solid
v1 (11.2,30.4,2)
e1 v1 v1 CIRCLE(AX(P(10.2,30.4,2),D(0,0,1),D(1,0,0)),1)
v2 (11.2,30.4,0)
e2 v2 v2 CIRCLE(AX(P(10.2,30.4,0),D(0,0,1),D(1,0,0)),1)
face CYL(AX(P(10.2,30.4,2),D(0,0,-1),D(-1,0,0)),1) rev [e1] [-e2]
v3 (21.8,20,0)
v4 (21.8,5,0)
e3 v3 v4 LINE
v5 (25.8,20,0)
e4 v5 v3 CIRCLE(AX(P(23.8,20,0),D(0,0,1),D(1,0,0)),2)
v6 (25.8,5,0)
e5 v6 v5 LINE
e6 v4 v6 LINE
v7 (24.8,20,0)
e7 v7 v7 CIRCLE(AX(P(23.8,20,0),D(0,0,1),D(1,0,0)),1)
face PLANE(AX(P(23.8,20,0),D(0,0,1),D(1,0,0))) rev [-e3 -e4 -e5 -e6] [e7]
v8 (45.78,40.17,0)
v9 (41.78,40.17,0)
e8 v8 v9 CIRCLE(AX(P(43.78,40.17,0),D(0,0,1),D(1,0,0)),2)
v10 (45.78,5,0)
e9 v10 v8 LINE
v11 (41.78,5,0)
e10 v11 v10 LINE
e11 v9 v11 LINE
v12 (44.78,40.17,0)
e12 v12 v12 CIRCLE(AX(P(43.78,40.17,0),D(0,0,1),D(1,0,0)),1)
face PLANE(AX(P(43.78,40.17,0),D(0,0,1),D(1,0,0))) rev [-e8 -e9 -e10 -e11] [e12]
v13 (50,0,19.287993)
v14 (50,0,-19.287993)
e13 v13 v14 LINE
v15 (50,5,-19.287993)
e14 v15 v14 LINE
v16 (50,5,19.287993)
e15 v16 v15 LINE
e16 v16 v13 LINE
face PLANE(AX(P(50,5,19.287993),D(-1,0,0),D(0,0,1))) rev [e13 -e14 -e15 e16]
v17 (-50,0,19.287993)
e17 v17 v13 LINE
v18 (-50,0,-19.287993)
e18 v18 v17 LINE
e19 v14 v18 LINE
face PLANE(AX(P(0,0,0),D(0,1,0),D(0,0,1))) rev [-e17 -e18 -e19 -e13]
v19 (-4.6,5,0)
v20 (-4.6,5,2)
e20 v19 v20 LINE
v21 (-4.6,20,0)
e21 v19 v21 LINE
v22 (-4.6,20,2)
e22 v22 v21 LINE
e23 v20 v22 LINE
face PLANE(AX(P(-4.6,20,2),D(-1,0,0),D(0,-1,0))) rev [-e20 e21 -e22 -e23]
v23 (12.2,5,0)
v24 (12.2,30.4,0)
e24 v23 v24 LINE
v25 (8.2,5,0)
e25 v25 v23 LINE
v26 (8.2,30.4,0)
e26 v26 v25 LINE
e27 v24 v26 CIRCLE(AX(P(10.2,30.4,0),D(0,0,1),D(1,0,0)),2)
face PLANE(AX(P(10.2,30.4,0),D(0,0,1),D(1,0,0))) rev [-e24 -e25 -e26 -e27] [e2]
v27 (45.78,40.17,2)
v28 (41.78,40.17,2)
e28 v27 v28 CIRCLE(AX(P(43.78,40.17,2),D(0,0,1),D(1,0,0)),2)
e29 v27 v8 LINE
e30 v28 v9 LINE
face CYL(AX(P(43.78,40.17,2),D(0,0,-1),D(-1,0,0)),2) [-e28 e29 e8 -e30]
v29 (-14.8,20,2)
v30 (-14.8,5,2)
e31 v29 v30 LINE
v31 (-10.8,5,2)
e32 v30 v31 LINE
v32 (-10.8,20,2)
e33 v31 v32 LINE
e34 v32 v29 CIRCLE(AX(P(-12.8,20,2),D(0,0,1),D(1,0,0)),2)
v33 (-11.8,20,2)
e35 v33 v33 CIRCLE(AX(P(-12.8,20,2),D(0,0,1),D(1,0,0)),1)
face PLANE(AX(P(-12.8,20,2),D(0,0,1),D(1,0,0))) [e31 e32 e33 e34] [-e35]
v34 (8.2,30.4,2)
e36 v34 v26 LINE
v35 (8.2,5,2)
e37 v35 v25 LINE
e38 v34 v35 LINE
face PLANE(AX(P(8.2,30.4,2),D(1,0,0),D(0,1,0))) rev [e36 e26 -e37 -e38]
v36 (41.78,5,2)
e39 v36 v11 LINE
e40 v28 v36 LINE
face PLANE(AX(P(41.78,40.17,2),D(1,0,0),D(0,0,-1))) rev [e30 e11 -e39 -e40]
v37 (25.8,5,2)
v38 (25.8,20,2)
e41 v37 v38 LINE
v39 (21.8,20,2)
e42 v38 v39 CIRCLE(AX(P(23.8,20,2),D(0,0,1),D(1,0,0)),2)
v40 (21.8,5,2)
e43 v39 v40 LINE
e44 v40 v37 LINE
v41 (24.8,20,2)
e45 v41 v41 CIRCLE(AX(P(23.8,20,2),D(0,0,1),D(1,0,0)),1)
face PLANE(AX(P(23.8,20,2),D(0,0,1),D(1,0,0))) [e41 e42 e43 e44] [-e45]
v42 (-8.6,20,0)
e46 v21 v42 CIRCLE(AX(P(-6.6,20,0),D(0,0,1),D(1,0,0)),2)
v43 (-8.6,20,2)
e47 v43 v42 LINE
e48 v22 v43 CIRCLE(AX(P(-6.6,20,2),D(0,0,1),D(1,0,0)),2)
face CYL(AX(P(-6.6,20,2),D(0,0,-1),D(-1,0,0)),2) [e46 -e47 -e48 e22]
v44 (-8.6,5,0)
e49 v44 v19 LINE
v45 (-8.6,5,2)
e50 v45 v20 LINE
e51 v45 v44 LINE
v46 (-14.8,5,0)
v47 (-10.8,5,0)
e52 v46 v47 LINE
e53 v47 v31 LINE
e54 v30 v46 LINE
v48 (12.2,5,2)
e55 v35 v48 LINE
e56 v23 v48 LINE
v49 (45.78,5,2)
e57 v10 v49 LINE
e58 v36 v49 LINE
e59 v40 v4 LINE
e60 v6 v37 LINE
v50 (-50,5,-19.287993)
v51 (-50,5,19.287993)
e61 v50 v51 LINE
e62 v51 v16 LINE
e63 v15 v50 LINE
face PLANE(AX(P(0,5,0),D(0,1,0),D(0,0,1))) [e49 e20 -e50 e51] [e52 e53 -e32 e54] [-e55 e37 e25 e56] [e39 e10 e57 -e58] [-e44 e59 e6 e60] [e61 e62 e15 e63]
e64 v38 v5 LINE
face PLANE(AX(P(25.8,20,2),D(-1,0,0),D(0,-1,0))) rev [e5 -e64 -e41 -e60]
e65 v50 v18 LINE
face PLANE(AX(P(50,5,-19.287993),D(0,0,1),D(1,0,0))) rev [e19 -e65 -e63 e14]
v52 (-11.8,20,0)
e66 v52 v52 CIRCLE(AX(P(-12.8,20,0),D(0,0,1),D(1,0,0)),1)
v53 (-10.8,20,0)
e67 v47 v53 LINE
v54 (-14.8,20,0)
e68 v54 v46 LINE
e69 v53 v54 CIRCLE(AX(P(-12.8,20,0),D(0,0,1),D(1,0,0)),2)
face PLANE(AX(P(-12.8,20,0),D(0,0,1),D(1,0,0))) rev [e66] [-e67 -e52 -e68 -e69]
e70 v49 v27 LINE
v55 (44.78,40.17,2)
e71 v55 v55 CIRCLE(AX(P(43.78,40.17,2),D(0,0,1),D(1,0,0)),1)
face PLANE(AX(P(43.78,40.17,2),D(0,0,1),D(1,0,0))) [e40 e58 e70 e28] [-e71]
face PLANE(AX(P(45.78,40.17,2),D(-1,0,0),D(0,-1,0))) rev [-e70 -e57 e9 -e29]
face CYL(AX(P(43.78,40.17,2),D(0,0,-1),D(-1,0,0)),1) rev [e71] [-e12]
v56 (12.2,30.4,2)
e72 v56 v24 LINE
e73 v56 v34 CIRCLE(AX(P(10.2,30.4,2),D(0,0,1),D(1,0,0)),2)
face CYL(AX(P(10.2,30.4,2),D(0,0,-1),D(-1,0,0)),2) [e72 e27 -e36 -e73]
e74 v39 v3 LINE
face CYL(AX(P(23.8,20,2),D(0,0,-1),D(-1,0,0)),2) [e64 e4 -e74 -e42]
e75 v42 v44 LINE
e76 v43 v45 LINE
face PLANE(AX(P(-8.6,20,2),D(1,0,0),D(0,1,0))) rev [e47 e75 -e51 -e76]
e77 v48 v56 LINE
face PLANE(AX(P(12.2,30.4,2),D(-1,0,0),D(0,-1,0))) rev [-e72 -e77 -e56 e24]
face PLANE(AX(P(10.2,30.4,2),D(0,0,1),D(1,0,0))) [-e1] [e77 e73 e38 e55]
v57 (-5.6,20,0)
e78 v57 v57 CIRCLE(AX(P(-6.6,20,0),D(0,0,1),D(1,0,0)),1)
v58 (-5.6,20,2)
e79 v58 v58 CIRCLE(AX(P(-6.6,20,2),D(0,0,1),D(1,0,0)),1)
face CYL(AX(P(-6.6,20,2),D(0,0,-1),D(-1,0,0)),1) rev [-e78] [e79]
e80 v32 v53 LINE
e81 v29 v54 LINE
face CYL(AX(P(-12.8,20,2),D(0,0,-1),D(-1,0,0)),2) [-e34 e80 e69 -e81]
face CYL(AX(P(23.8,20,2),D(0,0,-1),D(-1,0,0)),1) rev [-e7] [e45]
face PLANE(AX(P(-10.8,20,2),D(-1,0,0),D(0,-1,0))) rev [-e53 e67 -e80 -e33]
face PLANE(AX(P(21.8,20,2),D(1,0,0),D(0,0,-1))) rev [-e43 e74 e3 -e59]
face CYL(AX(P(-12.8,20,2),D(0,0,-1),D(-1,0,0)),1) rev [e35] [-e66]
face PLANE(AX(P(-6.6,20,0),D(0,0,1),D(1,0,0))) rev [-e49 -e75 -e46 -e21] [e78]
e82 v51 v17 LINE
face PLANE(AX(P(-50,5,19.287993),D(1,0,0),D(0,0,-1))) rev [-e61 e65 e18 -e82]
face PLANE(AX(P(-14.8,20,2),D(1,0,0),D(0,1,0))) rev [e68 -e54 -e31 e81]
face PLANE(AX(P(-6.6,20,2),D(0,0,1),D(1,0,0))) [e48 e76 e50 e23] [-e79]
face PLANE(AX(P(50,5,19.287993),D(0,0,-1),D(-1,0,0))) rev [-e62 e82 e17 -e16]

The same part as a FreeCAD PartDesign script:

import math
import FreeCAD as App
import Part
import Sketcher


def add_polygon(sketch, points):
    """Adds a closed chain of lines whose ends are joined by coincident constraints."""
    first, n = sketch.GeometryCount, len(points)
    for a, b in zip(points, points[1:] + points[:1]):
        sketch.addGeometry(Part.LineSegment(App.Vector(*a, 0), App.Vector(*b, 0)), False)
    for i in range(n):
        sketch.addConstraint(Sketcher.Constraint("Coincident", first + i, 2, first + (i + 1) % n, 1))

doc = App.newDocument("Part")
body = doc.addObject("PartDesign::Body", "Body")

sketch1 = body.newObject("Sketcher::SketchObject", "Sketch")
sketch1.AttachmentSupport = (doc.getObject("XZ_Plane"), [""])
sketch1.MapMode = "FlatFace"
add_polygon(sketch1, [(-50, -19), (-50, 19), (50, 19), (50, -19)])
sketch1.addConstraint([
    Sketcher.Constraint("Vertical", 0),
    Sketcher.Constraint("Horizontal", 1),
    Sketcher.Constraint("Vertical", 2),
    Sketcher.Constraint("Horizontal", 3),
    Sketcher.Constraint("Symmetric", 0, 2, 2, 2, -1, 1),
    Sketcher.Constraint("DistanceX", 1, 1, 1, 2, 100.0),
    Sketcher.Constraint("DistanceY", 0, 1, 0, 2, 38.575985),
])
pad1 = body.newObject("PartDesign::Pad", "Pad")
pad1.Profile = sketch1
pad1.Length = 5
pad1.Reversed = True

sketch2 = body.newObject("Sketcher::SketchObject", "Sketch001")
sketch2.AttachmentSupport = (doc.getObject("XY_Plane"), [""])
sketch2.MapMode = "FlatFace"
sketch2.addGeometry([
    Part.LineSegment(App.Vector(-8.6, 20, 0), App.Vector(-8.6, 0, 0)),
    Part.LineSegment(App.Vector(-8.6, 0, 0), App.Vector(-4.6, 0, 0)),
    Part.LineSegment(App.Vector(-4.6, 0, 0), App.Vector(-4.6, 20, 0)),
    Part.ArcOfCircle(Part.Circle(App.Vector(-6.6, 20, 0), App.Vector(0, 0, 1), 2), math.radians(0), math.radians(180)),
    Part.Circle(App.Vector(-6.6, 20, 0), App.Vector(0, 0, 1), 1),
    Part.LineSegment(App.Vector(-14.8, 20, 0), App.Vector(-14.8, 0, 0)),
    Part.LineSegment(App.Vector(-14.8, 0, 0), App.Vector(-10.8, 0, 0)),
    Part.LineSegment(App.Vector(-10.8, 0, 0), App.Vector(-10.8, 20, 0)),
    Part.ArcOfCircle(Part.Circle(App.Vector(-12.8, 20, 0), App.Vector(0, 0, 1), 2), math.radians(0), math.radians(180)),
    Part.Circle(App.Vector(-12.8, 20, 0), App.Vector(0, 0, 1), 1),
    Part.LineSegment(App.Vector(21.8, 20, 0), App.Vector(21.8, 0, 0)),
    Part.LineSegment(App.Vector(21.8, 0, 0), App.Vector(25.8, 0, 0)),
    Part.LineSegment(App.Vector(25.8, 0, 0), App.Vector(25.8, 20, 0)),
    Part.ArcOfCircle(Part.Circle(App.Vector(23.8, 20, 0), App.Vector(0, 0, 1), 2), math.radians(0), math.radians(180)),
    Part.Circle(App.Vector(23.8, 20, 0), App.Vector(0, 0, 1), 1),
    Part.LineSegment(App.Vector(8.2, 30.4, 0), App.Vector(8.2, 0, 0)),
    Part.LineSegment(App.Vector(8.2, 0, 0), App.Vector(12.2, 0, 0)),
    Part.LineSegment(App.Vector(12.2, 0, 0), App.Vector(12.2, 30.4, 0)),
    Part.ArcOfCircle(Part.Circle(App.Vector(10.2, 30.4, 0), App.Vector(0, 0, 1), 2), math.radians(0), math.radians(180)),
    Part.Circle(App.Vector(10.2, 30.4, 0), App.Vector(0, 0, 1), 1),
    Part.LineSegment(App.Vector(41.8, 40.2, 0), App.Vector(41.8, 0, 0)),
    Part.LineSegment(App.Vector(41.8, 0, 0), App.Vector(45.8, 0, 0)),
    Part.LineSegment(App.Vector(45.8, 0, 0), App.Vector(45.8, 40.2, 0)),
    Part.ArcOfCircle(Part.Circle(App.Vector(43.8, 40.2, 0), App.Vector(0, 0, 1), 2), math.radians(0), math.radians(180)),
    Part.Circle(App.Vector(43.8, 40.2, 0), App.Vector(0, 0, 1), 1),
], False)
sketch2.addConstraint([
    Sketcher.Constraint("Coincident", 0, 2, 1, 1),
    Sketcher.Constraint("Coincident", 1, 2, 2, 1),
    Sketcher.Constraint("Tangent", 2, 2, 3, 1),
    Sketcher.Constraint("Tangent", 3, 2, 0, 1),
    Sketcher.Constraint("Coincident", 5, 2, 6, 1),
    Sketcher.Constraint("Coincident", 6, 2, 7, 1),
    Sketcher.Constraint("Tangent", 7, 2, 8, 1),
    Sketcher.Constraint("Tangent", 8, 2, 5, 1),
    Sketcher.Constraint("Coincident", 10, 2, 11, 1),
    Sketcher.Constraint("Coincident", 11, 2, 12, 1),
    Sketcher.Constraint("Tangent", 12, 2, 13, 1),
    Sketcher.Constraint("Tangent", 13, 2, 10, 1),
    Sketcher.Constraint("Coincident", 15, 2, 16, 1),
    Sketcher.Constraint("Coincident", 16, 2, 17, 1),
    Sketcher.Constraint("Tangent", 17, 2, 18, 1),
    Sketcher.Constraint("Tangent", 18, 2, 15, 1),
    Sketcher.Constraint("Coincident", 20, 2, 21, 1),
    Sketcher.Constraint("Coincident", 21, 2, 22, 1),
    Sketcher.Constraint("Tangent", 22, 2, 23, 1),
    Sketcher.Constraint("Tangent", 23, 2, 20, 1),
    Sketcher.Constraint("Vertical", 0),
    Sketcher.Constraint("Horizontal", 1),
    Sketcher.Constraint("Vertical", 2),
    Sketcher.Constraint("Vertical", 5),
    Sketcher.Constraint("Horizontal", 6),
    Sketcher.Constraint("Vertical", 7),
    Sketcher.Constraint("Vertical", 10),
    Sketcher.Constraint("Horizontal", 11),
    Sketcher.Constraint("Vertical", 12),
    Sketcher.Constraint("Vertical", 15),
    Sketcher.Constraint("Horizontal", 16),
    Sketcher.Constraint("Vertical", 17),
    Sketcher.Constraint("Vertical", 20),
    Sketcher.Constraint("Horizontal", 21),
    Sketcher.Constraint("Vertical", 22),
    Sketcher.Constraint("Coincident", 4, 3, 3, 3),
    Sketcher.Constraint("Coincident", 9, 3, 8, 3),
    Sketcher.Constraint("Coincident", 14, 3, 13, 3),
    Sketcher.Constraint("Coincident", 19, 3, 18, 3),
    Sketcher.Constraint("Coincident", 24, 3, 23, 3),
    Sketcher.Constraint("Equal", 3, 8),
    Sketcher.Constraint("Equal", 4, 9),
    Sketcher.Constraint("Equal", 8, 13),
    Sketcher.Constraint("Equal", 9, 14),
    Sketcher.Constraint("Equal", 13, 18),
    Sketcher.Constraint("Equal", 14, 19),
    Sketcher.Constraint("Equal", 18, 23),
    Sketcher.Constraint("Equal", 19, 24),
    Sketcher.Constraint("PointOnObject", 0, 2, -1),
    Sketcher.Constraint("PointOnObject", 5, 2, -1),
    Sketcher.Constraint("PointOnObject", 10, 2, -1),
    Sketcher.Constraint("PointOnObject", 15, 2, -1),
    Sketcher.Constraint("PointOnObject", 20, 2, -1),
    Sketcher.Constraint("Horizontal", 4, 3, 8, 3),
    Sketcher.Constraint("Horizontal", 9, 3, 13, 3),
    Sketcher.Constraint("Diameter", 4, 2.0),
    Sketcher.Constraint("Radius", 3, 2.0),
    Sketcher.Constraint("DistanceY", 0, 2, 0, 1, 20.0),
    Sketcher.Constraint("DistanceY", 15, 2, 15, 1, 30.4),
    Sketcher.Constraint("DistanceX", 8, 3, 18, 3, 23.0),
    Sketcher.Constraint("DistanceY", 20, 2, 20, 1, 40.17),
    Sketcher.Constraint("DistanceX", 3, 3, -1, 1, 6.6),
    Sketcher.Constraint("DistanceX", 8, 3, -1, 1, 12.8),
    Sketcher.Constraint("DistanceX", -1, 1, 13, 3, 23.8),
    Sketcher.Constraint("DistanceX", -1, 1, 23, 3, 43.78),
])
pad2 = body.newObject("PartDesign::Pad", "Pad001")
pad2.Profile = sketch2
pad2.Length = 2

doc.recompute()
